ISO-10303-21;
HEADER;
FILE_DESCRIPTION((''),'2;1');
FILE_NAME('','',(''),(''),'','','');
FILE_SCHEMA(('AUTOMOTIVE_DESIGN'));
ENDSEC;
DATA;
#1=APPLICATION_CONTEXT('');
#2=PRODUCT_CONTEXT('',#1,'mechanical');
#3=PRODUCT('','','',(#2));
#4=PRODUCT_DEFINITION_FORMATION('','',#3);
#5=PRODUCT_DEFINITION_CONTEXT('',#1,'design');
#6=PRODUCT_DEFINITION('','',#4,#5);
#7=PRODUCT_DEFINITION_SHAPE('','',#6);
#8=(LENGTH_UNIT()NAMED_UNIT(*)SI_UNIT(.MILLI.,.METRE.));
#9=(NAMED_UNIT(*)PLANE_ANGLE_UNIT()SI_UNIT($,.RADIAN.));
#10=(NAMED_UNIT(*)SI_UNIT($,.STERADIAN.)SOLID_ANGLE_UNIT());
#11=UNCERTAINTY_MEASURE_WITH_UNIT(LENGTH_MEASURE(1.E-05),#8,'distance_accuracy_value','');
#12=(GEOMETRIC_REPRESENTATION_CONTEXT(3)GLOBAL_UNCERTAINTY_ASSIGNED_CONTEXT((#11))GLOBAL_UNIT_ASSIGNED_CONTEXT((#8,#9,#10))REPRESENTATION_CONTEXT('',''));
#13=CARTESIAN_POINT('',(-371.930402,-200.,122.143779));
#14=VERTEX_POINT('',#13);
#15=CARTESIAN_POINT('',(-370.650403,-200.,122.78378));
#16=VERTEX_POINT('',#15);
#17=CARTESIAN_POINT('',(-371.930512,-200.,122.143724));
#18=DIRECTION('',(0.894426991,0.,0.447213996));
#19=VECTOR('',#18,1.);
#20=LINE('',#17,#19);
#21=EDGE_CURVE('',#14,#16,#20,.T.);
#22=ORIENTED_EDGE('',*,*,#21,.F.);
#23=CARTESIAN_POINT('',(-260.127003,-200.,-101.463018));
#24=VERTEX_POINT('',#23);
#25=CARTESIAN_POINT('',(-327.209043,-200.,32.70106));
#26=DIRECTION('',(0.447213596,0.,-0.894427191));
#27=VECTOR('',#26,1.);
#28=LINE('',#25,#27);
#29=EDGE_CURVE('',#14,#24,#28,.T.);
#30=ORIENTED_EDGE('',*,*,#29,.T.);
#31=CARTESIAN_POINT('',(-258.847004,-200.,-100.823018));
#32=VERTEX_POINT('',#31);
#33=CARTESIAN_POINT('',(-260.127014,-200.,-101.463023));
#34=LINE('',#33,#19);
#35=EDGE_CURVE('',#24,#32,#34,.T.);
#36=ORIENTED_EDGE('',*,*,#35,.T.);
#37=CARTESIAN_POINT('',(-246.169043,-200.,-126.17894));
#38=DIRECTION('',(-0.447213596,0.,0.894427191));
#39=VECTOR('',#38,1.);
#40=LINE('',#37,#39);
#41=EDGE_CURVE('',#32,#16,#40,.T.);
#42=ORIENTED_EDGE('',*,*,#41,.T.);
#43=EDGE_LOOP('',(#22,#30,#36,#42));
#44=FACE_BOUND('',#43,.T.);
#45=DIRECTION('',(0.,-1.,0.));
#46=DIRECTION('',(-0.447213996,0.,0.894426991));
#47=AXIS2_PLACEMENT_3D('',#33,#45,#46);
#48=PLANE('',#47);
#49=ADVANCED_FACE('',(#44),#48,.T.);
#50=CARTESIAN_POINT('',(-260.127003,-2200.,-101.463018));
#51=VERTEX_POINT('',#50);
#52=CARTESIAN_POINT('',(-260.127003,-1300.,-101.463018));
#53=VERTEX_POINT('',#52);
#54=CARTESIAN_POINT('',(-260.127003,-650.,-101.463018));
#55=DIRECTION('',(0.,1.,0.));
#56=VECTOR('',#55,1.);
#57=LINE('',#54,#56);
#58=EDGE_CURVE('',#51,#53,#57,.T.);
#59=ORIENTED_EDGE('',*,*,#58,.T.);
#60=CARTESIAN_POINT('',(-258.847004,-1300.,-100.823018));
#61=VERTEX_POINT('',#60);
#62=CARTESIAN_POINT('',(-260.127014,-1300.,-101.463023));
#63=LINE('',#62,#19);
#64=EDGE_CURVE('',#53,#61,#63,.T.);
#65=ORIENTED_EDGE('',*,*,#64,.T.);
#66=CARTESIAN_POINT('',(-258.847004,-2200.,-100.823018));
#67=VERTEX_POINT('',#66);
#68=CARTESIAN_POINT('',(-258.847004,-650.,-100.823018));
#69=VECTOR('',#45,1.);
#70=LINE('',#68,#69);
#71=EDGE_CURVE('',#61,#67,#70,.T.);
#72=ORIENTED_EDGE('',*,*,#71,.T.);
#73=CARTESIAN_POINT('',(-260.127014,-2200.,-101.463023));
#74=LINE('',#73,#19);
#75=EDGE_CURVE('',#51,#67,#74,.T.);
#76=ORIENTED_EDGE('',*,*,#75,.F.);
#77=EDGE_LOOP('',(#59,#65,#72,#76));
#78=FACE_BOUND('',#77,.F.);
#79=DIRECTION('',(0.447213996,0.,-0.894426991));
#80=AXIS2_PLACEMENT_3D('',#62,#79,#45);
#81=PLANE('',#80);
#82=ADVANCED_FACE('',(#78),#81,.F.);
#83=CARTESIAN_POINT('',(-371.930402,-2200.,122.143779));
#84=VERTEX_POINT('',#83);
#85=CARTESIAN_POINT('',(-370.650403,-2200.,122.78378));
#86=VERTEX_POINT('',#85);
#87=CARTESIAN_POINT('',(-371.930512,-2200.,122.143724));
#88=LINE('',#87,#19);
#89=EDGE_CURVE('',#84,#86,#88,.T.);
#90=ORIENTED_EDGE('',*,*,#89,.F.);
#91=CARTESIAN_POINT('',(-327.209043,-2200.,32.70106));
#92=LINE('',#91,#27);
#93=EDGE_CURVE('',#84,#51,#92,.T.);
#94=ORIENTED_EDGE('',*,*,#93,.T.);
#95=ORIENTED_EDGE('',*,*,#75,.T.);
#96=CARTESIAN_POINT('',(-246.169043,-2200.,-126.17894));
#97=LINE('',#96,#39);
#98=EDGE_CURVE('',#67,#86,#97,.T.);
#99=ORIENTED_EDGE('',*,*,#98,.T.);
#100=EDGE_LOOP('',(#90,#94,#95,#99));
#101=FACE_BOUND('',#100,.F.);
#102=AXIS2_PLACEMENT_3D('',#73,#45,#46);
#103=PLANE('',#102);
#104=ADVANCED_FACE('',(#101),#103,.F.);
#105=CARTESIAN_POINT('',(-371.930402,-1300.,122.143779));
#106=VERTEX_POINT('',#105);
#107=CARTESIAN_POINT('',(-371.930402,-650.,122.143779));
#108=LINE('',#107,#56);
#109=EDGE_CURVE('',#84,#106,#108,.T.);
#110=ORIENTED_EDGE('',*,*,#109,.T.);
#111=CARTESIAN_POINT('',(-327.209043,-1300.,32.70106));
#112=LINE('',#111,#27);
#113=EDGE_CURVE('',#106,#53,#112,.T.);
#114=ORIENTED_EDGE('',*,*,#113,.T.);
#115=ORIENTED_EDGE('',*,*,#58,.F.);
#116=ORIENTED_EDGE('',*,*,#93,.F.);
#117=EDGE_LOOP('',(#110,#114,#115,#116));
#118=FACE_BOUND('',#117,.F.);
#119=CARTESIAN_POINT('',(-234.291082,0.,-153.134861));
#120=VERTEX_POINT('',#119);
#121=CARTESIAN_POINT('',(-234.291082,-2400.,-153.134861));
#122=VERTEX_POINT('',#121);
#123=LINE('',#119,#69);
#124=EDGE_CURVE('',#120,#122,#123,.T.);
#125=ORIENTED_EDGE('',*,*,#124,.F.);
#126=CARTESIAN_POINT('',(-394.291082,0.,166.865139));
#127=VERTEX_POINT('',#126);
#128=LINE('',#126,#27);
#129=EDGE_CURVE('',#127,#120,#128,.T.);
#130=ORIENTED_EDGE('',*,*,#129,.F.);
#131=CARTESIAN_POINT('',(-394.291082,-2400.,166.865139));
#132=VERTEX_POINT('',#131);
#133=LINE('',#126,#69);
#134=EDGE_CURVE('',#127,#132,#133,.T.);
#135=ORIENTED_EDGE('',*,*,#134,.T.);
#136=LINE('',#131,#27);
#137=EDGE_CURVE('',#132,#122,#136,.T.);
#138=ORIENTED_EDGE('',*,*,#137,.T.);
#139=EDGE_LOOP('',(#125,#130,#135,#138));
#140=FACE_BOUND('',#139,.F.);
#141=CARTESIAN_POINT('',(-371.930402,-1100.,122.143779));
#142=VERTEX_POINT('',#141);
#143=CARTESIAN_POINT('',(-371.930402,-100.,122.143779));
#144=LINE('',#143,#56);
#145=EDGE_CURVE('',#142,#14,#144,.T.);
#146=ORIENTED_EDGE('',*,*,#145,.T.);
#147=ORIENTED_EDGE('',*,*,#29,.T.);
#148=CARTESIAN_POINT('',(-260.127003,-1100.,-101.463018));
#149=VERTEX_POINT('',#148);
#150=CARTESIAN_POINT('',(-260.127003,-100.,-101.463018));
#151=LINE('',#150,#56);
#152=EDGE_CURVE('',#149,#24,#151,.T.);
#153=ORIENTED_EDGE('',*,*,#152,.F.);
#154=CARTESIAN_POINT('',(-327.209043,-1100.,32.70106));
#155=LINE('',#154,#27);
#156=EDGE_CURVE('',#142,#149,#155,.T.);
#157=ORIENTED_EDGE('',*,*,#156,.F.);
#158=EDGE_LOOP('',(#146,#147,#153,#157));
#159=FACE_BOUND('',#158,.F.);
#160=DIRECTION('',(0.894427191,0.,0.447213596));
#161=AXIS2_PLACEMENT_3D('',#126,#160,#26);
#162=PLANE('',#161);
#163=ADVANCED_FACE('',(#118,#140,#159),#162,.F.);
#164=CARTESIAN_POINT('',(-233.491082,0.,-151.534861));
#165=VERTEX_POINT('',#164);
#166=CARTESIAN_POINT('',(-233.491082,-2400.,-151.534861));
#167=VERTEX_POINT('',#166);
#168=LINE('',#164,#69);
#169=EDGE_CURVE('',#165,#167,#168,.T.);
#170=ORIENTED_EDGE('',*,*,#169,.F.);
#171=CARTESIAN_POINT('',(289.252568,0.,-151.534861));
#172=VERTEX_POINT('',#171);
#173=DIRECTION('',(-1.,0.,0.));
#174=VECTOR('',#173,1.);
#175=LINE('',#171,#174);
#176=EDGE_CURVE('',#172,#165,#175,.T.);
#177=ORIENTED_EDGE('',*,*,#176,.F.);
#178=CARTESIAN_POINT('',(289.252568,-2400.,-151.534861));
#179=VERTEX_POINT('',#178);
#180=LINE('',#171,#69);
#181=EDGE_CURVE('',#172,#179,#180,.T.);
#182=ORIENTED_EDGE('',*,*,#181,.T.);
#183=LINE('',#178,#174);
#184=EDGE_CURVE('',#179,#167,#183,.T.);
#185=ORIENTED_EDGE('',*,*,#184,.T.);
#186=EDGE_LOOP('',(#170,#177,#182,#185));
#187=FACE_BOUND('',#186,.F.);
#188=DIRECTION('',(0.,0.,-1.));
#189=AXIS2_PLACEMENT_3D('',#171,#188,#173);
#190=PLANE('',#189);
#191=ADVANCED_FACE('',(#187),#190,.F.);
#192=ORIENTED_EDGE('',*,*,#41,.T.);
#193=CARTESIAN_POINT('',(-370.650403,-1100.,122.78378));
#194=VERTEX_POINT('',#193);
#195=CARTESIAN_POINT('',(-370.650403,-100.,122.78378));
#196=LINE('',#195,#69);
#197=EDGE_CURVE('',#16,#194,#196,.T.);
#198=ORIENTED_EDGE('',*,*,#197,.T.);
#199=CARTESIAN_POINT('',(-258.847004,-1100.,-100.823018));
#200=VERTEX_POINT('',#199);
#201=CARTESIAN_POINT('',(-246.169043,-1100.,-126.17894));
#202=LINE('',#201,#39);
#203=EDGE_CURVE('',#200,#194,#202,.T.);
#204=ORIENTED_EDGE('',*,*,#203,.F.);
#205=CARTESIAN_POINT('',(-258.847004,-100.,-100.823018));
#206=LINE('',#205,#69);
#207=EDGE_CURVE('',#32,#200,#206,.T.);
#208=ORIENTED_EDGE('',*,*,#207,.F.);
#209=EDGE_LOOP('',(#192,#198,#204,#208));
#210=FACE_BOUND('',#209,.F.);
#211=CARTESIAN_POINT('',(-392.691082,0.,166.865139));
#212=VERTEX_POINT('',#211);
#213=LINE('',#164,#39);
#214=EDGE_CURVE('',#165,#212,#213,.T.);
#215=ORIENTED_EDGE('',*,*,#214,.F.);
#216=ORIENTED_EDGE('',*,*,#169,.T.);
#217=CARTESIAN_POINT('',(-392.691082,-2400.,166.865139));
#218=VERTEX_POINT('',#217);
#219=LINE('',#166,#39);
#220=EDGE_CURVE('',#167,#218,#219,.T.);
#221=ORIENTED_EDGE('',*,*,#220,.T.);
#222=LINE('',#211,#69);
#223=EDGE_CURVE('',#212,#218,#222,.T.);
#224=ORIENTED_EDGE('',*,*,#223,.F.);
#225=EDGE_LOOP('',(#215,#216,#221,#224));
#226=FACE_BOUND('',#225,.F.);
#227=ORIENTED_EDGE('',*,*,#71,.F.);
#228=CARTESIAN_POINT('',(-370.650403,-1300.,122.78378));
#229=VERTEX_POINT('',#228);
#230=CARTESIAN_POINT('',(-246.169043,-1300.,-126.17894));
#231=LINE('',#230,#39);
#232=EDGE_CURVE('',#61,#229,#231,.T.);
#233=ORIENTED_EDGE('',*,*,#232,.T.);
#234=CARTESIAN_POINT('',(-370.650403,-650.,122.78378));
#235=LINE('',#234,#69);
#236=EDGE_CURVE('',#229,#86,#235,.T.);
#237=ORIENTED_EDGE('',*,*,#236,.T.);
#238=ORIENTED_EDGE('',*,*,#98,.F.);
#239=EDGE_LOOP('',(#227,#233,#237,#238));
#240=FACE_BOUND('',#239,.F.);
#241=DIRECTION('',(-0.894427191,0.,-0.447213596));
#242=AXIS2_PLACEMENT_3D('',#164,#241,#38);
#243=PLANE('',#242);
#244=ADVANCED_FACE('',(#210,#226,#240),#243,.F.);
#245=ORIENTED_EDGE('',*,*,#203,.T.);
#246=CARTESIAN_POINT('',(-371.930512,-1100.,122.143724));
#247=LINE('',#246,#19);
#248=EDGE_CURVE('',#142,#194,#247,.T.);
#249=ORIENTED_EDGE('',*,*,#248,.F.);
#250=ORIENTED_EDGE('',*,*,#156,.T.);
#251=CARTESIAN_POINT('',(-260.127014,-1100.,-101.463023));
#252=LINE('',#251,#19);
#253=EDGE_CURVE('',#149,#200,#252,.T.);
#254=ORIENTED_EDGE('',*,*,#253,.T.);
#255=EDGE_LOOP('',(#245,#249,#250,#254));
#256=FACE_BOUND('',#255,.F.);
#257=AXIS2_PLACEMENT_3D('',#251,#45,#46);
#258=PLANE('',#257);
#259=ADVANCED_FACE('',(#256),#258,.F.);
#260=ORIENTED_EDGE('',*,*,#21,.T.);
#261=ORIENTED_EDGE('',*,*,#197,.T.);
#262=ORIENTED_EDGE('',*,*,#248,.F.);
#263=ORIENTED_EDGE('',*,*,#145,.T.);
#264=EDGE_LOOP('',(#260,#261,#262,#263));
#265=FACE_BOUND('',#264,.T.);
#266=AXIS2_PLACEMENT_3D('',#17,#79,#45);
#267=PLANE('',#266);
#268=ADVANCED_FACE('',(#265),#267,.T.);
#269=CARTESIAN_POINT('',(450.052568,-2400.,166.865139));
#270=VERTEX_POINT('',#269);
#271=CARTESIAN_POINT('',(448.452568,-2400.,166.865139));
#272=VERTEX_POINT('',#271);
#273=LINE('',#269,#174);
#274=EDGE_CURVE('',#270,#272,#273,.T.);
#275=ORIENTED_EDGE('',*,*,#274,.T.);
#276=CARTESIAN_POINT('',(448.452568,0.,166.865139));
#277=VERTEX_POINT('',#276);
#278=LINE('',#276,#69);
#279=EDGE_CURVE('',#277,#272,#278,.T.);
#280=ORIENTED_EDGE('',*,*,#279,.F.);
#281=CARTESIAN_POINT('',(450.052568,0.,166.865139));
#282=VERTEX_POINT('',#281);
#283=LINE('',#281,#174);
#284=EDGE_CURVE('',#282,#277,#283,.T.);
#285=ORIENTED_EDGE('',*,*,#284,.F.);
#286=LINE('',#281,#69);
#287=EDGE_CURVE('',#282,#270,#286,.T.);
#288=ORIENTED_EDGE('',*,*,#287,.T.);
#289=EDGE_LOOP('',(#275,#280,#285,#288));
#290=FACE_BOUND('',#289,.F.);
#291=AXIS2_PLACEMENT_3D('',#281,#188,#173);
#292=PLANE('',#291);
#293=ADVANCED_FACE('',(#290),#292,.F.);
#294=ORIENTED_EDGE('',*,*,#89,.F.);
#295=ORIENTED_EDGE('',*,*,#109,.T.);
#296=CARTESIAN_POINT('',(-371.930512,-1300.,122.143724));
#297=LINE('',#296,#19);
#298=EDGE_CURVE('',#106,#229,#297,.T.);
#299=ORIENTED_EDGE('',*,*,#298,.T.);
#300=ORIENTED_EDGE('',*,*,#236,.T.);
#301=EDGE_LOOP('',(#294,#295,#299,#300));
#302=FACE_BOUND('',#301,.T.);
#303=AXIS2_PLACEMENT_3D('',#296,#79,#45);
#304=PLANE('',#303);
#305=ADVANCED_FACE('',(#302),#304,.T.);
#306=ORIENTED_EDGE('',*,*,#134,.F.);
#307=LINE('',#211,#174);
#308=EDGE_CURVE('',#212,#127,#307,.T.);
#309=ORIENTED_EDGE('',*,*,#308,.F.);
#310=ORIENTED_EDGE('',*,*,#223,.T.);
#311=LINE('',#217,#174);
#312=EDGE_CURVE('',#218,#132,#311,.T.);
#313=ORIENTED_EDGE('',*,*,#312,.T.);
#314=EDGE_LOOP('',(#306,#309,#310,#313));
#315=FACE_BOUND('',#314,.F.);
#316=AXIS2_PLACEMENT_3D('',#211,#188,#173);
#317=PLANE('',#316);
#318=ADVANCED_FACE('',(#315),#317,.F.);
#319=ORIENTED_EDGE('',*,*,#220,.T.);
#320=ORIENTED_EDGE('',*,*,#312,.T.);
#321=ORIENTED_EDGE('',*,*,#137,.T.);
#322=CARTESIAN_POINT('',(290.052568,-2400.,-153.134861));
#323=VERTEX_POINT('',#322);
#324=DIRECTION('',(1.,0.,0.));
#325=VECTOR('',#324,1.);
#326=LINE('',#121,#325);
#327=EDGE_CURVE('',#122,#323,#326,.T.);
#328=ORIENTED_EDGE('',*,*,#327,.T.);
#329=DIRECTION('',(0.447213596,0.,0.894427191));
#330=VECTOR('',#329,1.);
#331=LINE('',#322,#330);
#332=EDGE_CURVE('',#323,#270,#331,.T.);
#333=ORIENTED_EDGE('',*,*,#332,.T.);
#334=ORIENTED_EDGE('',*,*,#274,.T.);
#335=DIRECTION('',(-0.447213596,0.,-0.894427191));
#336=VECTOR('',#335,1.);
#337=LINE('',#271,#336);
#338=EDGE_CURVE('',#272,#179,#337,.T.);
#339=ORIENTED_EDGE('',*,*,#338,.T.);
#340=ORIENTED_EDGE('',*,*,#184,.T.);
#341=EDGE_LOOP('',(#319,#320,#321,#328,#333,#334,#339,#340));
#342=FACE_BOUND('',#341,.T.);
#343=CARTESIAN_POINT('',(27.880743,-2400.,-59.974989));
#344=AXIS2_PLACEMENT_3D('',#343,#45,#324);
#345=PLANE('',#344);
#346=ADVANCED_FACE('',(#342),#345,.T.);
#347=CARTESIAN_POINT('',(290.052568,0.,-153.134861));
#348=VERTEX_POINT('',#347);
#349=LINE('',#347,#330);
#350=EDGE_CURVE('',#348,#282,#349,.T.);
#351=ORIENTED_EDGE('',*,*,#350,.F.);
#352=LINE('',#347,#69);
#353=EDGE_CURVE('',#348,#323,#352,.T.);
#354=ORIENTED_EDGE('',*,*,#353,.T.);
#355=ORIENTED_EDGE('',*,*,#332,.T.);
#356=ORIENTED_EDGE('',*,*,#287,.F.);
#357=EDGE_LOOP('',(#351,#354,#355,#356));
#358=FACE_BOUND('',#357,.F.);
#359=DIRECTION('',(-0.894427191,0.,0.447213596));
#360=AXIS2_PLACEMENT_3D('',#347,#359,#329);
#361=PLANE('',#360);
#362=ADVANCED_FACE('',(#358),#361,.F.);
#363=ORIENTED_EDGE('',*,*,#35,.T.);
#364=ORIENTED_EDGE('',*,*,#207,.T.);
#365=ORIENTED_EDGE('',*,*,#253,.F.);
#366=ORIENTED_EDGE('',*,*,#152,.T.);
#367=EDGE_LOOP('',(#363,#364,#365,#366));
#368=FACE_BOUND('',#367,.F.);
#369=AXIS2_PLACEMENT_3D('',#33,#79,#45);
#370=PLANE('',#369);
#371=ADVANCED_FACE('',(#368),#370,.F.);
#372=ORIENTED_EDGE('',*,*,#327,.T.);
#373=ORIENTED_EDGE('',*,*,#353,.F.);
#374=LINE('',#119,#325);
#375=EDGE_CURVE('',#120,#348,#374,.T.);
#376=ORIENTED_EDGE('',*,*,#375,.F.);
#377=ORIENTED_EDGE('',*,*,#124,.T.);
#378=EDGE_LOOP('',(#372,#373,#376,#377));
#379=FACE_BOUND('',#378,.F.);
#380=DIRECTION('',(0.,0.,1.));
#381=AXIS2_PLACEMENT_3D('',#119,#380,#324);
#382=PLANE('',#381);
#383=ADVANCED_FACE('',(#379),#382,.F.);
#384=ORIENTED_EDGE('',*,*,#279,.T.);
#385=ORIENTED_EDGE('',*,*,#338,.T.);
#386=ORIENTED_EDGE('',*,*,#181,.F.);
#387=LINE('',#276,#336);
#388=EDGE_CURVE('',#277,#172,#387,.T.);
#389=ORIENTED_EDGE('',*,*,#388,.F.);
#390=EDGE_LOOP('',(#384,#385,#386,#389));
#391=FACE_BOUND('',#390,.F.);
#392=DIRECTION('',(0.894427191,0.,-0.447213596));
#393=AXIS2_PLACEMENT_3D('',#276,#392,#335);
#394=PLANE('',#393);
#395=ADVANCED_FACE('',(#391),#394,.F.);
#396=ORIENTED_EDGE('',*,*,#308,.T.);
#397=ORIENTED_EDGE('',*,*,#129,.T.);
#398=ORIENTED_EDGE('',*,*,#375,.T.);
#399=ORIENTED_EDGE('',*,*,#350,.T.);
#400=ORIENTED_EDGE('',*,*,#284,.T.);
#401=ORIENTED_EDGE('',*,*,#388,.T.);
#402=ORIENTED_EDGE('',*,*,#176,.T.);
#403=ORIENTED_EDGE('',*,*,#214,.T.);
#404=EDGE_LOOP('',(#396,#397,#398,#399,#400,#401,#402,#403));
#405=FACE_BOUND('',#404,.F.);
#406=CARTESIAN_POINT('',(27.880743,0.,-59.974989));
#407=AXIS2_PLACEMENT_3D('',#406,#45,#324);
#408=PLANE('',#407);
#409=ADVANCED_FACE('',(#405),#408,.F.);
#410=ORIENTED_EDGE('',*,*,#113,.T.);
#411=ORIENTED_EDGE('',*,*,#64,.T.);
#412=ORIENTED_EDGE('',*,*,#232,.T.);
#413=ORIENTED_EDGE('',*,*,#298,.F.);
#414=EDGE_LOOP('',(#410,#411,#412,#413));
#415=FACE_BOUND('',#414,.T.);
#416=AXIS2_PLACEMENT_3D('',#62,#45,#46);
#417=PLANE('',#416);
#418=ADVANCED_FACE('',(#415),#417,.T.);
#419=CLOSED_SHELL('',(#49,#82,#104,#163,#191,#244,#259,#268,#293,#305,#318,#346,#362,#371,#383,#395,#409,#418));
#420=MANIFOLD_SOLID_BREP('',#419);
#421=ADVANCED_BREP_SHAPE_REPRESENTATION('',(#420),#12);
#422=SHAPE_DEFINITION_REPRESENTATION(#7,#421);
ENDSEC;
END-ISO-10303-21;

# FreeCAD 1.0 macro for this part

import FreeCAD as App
import Part
import Sketcher

V = App.Vector
Q = App.Units.Quantity

doc = App.newDocument("Part")
body = doc.addObject("PartDesign::Body", "Body")

# Sketch on XZ plane
sketch1 = body.newObject("Sketcher::SketchObject", "Sketch")
sketch1.AttachmentSupport = (doc.getObject("XZ_Plane"), [""])
sketch1.MapMode = "FlatFace"
sketch1.addGeometry([
    Part.LineSegment(V(-392.7, 166.9, 0), V(-394.3, 166.9, 0)),  # 0
    Part.LineSegment(V(-394.3, 166.9, 0), V(-234.3, -153.1, 0)),  # 1
    Part.LineSegment(V(-234.3, -153.1, 0), V(290.1, -153.1, 0)),  # 2
    Part.LineSegment(V(290.1, -153.1, 0), V(450.1, 166.9, 0)),  # 3
    Part.LineSegment(V(450.1, 166.9, 0), V(448.5, 166.9, 0)),  # 4
    Part.LineSegment(V(448.5, 166.9, 0), V(289.3, -151.5, 0)),  # 5
    Part.LineSegment(V(289.3, -151.5, 0), V(-233.5, -151.5, 0)),  # 6
    Part.LineSegment(V(-233.5, -151.5, 0), V(-392.7, 166.9, 0)),  # 7
], False)
sketch1.addConstraint([
    Sketcher.Constraint("Coincident", 0, 2, 1, 1),
    Sketcher.Constraint("Coincident", 1, 2, 2, 1),
    Sketcher.Constraint("Coincident", 2, 2, 3, 1),
    Sketcher.Constraint("Coincident", 3, 2, 4, 1),
    Sketcher.Constraint("Coincident", 4, 2, 5, 1),
    Sketcher.Constraint("Coincident", 5, 2, 6, 1),
    Sketcher.Constraint("Coincident", 6, 2, 7, 1),
    Sketcher.Constraint("Coincident", 7, 2, 0, 1),
    Sketcher.Constraint("Horizontal", 0),
    Sketcher.Constraint("Horizontal", 2),
    Sketcher.Constraint("Horizontal", 4),
    Sketcher.Constraint("Horizontal", 6),
    Sketcher.Constraint("Parallel", 3, 5),
    Sketcher.Constraint("Parallel", 1, 7),
    Sketcher.Constraint("Horizontal", 0, 2, 3, 2),
    Sketcher.Constraint("Equal", 0, 4),
    Sketcher.Constraint("Equal", 1, 3),
    Sketcher.Constraint("DistanceX", 0, 2, 0, 1, Q("1.6 mm")),
    Sketcher.Constraint("DistanceX", 0, 2, 1, 2, Q("160 mm")),
    Sketcher.Constraint("DistanceY", 1, 2, 0, 2, Q("320 mm")),
    Sketcher.Constraint("DistanceX", 5, 2, 2, 2, Q("0.8 mm")),
    Sketcher.Constraint("DistanceX", 2, 1, 2, 2, Q("524.34365 mm")),
    Sketcher.Constraint("DistanceX", 0, 2, -1, 1, Q("394.291082 mm")),
    Sketcher.Constraint("DistanceY", -1, 1, 0, 2, Q("166.865139 mm")),
])
pad1 = body.newObject("PartDesign::Pad", "Pad")
pad1.Profile = sketch1
pad1.Length = 2400

# Sketch on an angled plane
sketch2 = body.newObject("Sketcher::SketchObject", "Sketch001")
sketch2.Placement = App.Placement(V(-248.68681, 0, -124.343405), App.Rotation(V(0, -1, 0), V(-0.447213995, 0, 0.894426991), V(-0.894426991, 0, -0.447213995), "ZXY"))
sketch2.addGeometry([
    Part.LineSegment(V(1300, 276, 0), V(1300, 26, 0)),
    Part.LineSegment(V(1300, 26, 0), V(2200, 26, 0)),
    Part.LineSegment(V(2200, 26, 0), V(2200, 276, 0)),
    Part.LineSegment(V(2200, 276, 0), V(1300, 276, 0)),
], False)
sketch2.addConstraint([
    Sketcher.Constraint("Coincident", 0, 2, 1, 1),
    Sketcher.Constraint("Coincident", 1, 2, 2, 1),
    Sketcher.Constraint("Coincident", 2, 2, 3, 1),
    Sketcher.Constraint("Coincident", 3, 2, 0, 1),
    Sketcher.Constraint("Vertical", 0),
    Sketcher.Constraint("Horizontal", 1),
    Sketcher.Constraint("Vertical", 2),
    Sketcher.Constraint("Horizontal", 3),
    Sketcher.Constraint("DistanceX", 1, 1, 1, 2, Q("900 mm")),
    Sketcher.Constraint("DistanceY", 0, 2, 0, 1, Q("250 mm")),
    Sketcher.Constraint("DistanceX", -1, 1, 0, 2, Q("1300 mm")),
    Sketcher.Constraint("DistanceY", -1, 1, 0, 2, Q("25.58105 mm")),
])
pocket1 = body.newObject("PartDesign::Pocket", "Pocket")
pocket1.Profile = sketch2
pocket1.Length = 1.6

# Sketch on an angled plane
sketch3 = body.newObject("Sketcher::SketchObject", "Sketch002")
sketch3.Placement = App.Placement(V(-248.68681, 0, -124.343405), App.Rotation(V(0, -1, 0), V(-0.447213995, 0, 0.894426991), V(-0.894426991, 0, -0.447213995), "ZXY"))
sketch3.addGeometry([
    Part.LineSegment(V(200, 276, 0), V(200, 26, 0)),
    Part.LineSegment(V(200, 26, 0), V(1100, 26, 0)),
    Part.LineSegment(V(1100, 26, 0), V(1100, 276, 0)),
    Part.LineSegment(V(1100, 276, 0), V(200, 276, 0)),
], False)
sketch3.addConstraint([
    Sketcher.Constraint("Coincident", 0, 2, 1, 1),
    Sketcher.Constraint("Coincident", 1, 2, 2, 1),
    Sketcher.Constraint("Coincident", 2, 2, 3, 1),
    Sketcher.Constraint("Coincident", 3, 2, 0, 1),
    Sketcher.Constraint("Vertical", 0),
    Sketcher.Constraint("Horizontal", 1),
    Sketcher.Constraint("Vertical", 2),
    Sketcher.Constraint("Horizontal", 3),
    Sketcher.Constraint("DistanceX", 1, 1, 1, 2, Q("900 mm")),
    Sketcher.Constraint("DistanceY", 0, 2, 0, 1, Q("250 mm")),
    Sketcher.Constraint("DistanceX", -1, 1, 0, 2, Q("200 mm")),
    Sketcher.Constraint("DistanceY", -1, 1, 0, 2, Q("25.58105 mm")),
])
pocket2 = body.newObject("PartDesign::Pocket", "Pocket001")
pocket2.Profile = sketch3
pocket2.Length = 1.6

doc.recompute()
